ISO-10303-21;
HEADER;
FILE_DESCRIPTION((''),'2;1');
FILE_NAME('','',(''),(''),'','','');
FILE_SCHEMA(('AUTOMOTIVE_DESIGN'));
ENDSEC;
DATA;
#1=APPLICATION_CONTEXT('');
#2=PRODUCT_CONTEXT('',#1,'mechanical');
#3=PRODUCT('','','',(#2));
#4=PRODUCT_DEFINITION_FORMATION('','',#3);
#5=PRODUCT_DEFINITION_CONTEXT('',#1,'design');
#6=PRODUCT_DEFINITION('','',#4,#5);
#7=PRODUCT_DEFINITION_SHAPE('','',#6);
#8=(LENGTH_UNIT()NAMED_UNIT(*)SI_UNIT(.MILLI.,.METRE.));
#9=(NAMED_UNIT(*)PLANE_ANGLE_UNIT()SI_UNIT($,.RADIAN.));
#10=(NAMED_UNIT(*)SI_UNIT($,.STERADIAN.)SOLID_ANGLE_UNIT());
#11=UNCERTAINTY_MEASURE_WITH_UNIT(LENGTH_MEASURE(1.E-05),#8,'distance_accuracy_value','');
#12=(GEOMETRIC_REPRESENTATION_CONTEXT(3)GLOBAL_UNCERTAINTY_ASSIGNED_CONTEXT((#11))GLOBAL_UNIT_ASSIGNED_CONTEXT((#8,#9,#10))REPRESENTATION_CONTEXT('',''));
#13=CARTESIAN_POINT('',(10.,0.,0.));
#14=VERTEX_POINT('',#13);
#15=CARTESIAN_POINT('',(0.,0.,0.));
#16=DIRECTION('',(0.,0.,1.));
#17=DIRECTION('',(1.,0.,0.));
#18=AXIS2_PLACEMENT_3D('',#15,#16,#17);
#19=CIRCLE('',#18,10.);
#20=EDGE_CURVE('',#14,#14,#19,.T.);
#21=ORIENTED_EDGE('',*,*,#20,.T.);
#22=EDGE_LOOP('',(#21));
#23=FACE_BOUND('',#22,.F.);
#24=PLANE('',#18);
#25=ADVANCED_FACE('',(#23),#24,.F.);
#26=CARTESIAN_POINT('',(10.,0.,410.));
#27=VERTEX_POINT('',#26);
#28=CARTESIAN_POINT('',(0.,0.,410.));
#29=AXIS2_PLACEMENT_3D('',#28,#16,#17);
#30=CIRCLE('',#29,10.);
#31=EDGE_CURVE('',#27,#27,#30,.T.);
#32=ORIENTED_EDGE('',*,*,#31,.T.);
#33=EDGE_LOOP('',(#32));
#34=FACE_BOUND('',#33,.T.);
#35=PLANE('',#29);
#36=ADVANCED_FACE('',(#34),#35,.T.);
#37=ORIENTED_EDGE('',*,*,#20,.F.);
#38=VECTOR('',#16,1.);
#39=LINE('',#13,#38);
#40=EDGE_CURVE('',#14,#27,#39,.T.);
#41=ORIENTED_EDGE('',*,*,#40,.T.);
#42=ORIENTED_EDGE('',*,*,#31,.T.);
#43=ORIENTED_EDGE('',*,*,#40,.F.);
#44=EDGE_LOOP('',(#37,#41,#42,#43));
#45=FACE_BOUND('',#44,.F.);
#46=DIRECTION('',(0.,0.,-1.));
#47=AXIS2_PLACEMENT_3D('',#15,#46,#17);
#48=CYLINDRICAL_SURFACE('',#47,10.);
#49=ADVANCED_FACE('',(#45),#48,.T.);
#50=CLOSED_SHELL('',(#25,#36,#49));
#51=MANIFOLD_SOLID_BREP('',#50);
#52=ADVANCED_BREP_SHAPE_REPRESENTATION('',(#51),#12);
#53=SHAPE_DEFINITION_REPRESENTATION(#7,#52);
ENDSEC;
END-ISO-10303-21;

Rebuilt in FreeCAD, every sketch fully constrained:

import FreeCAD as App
import Part
import Sketcher

V = App.Vector
Q = App.Units.Quantity

doc = App.newDocument("Part")
body = doc.addObject("PartDesign::Body", "Body")

sketch1 = body.newObject("Sketcher::SketchObject", "Sketch")
sketch1.AttachmentSupport = (doc.getObject("XY_Plane"), [""])
sketch1.MapMode = "FlatFace"
sketch1.addGeometry(Part.Circle(V(0, 0, 0), V(0, 0, 1), 10), False)
sketch1.addConstraint([
    Sketcher.Constraint("Coincident", 0, 3, -1, 1),
    Sketcher.Constraint("Diameter", 0, Q("20 mm")),
])
pad1 = body.newObject("PartDesign::Pad", "Pad")
pad1.Profile = sketch1
pad1.Length = 410

doc.recompute()
